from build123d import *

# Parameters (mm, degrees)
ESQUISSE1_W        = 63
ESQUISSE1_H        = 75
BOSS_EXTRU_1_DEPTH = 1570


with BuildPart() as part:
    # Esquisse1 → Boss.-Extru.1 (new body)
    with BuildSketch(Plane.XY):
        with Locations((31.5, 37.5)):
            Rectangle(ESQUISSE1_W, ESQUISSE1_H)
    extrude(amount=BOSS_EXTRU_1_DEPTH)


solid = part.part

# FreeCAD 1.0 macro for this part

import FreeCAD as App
import Part
import Sketcher

V = App.Vector


def add_polygon(sketch, points):
    """Adds a closed chain of lines whose ends are joined by coincident constraints."""
    first, n = sketch.GeometryCount, len(points)
    for a, b in zip(points, points[1:] + points[:1]):
        sketch.addGeometry(Part.LineSegment(App.Vector(*a, 0), App.Vector(*b, 0)), False)
    for i in range(n):
        sketch.addConstraint(Sketcher.Constraint("Coincident", first + i, 2, first + (i + 1) % n, 1))

doc = App.newDocument("Part")
params = doc.addObject("Spreadsheet::Sheet", "Params")
for row, (alias, value) in enumerate([
    ("sketch1_width", "63 mm"),
    ("sketch1_height", "75 mm"),
    ("pad1_length", "1570 mm"),
], start=1):
    params.set(f"A{row}", alias)
    params.set(f"B{row}", "=" + value)
    params.setAlias(f"B{row}", alias)

body = doc.addObject("PartDesign::Body", "Body")

# Sketch on XY plane
sketch1 = body.newObject("Sketcher::SketchObject", "Sketch")
sketch1.AttachmentSupport = (doc.getObject("XY_Plane"), [""])
sketch1.MapMode = "FlatFace"
add_polygon(sketch1, [(0, 75), (0, 0), (63, 0), (63, 75)])  # lines 0-3
sketch1.addConstraint(Sketcher.Constraint("Vertical", 0))
sketch1.addConstraint(Sketcher.Constraint("Horizontal", 1))
sketch1.addConstraint(Sketcher.Constraint("Vertical", 2))
sketch1.addConstraint(Sketcher.Constraint("Horizontal", 3))
sketch1.addConstraint(Sketcher.Constraint("Coincident", 0, 2, -1, 1))
sketch1.addConstraint(Sketcher.Constraint("DistanceX", 1, 1, 1, 2, 63.0))
sketch1.addConstraint(Sketcher.Constraint("DistanceY", 0, 2, 0, 1, 75.0))
sketch1.setExpression("Constraints[9]", "Params.sketch1_width")
sketch1.setExpression("Constraints[10]", "Params.sketch1_height")
pad1 = body.newObject("PartDesign::Pad", "Pad")
pad1.Profile = sketch1
pad1.setExpression("Length", "Params.pad1_length")

doc.recompute()
